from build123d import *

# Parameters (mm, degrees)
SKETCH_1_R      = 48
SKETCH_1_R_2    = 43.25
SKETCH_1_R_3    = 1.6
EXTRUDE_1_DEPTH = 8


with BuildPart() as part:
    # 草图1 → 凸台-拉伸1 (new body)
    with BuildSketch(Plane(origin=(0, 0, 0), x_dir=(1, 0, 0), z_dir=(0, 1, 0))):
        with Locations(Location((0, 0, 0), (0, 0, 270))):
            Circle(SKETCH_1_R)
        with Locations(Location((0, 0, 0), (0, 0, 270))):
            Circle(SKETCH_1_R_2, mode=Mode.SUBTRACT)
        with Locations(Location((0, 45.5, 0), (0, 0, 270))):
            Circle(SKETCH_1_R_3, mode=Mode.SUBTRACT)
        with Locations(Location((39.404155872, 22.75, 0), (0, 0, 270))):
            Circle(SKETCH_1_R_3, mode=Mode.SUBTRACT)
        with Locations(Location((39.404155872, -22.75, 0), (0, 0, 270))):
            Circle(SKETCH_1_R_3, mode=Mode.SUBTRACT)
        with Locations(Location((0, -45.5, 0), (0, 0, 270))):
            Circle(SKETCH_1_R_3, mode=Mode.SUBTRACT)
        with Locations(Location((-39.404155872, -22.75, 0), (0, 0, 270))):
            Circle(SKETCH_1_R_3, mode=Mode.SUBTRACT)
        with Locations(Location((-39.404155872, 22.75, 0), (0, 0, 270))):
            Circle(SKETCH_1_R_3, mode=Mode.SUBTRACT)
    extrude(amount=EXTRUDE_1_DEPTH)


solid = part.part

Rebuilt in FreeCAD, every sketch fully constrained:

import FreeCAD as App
import Part
import Sketcher
from FreeCAD import Vector
Q = App.Units.Quantity

doc = App.newDocument("Part")
body = doc.addObject("PartDesign::Body", "Body")

# Sketch on XZ plane
sketch1 = doc.addObject("Sketcher::SketchObject", "Sketch")
body.addObject(sketch1)
sketch1.AttachmentSupport = (doc.XZ_Plane, [""])
sketch1.MapMode = "FlatFace"
sketch1.addGeometry(Part.Circle(Vector(0, 0, 0), Vector(0, 0, 1), 48), False)
sketch1.addGeometry(Part.Circle(Vector(-39.404156, -22.75, 0), Vector(0, 0, 1), 1.6), False)
sketch1.addGeometry(Part.Circle(Vector(0, -45.5, 0), Vector(0, 0, 1), 1.6), False)
sketch1.addGeometry(Part.Circle(Vector(-39.404156, 22.75, 0), Vector(0, 0, 1), 1.6), False)
sketch1.addGeometry(Part.Circle(Vector(39.404156, -22.75, 0), Vector(0, 0, 1), 1.6), False)
sketch1.addGeometry(Part.Circle(Vector(0, 0, 0), Vector(0, 0, 1), 43.25), False)
sketch1.addGeometry(Part.Circle(Vector(0, 45.5, 0), Vector(0, 0, 1), 1.6), False)
sketch1.addGeometry(Part.Circle(Vector(39.404156, 22.75, 0), Vector(0, 0, 1), 1.6), False)
sketch1.addConstraint(Sketcher.Constraint("Coincident", 0, 3, -1, 1))
sketch1.addConstraint(Sketcher.Constraint("Coincident", 5, 3, -1, 1))
sketch1.addConstraint(Sketcher.Constraint("Equal", 1, 2))
sketch1.addConstraint(Sketcher.Constraint("Equal", 2, 3))
sketch1.addConstraint(Sketcher.Constraint("Equal", 3, 4))
sketch1.addConstraint(Sketcher.Constraint("Equal", 4, 6))
sketch1.addConstraint(Sketcher.Constraint("Equal", 6, 7))
sketch1.addConstraint(Sketcher.Constraint("Symmetric", 3, 3, 4, 3, -1, 1))
sketch1.addConstraint(Sketcher.Constraint("Symmetric", 2, 3, 6, 3, -1, 1))
sketch1.addConstraint(Sketcher.Constraint("Symmetric", 1, 3, 7, 3, -1, 1))
sketch1.addConstraint(Sketcher.Constraint("Symmetric", 1, 3, 4, 3, -2))
sketch1.addConstraint(Sketcher.Constraint("PointOnObject", 2, 3, -2))
sketch1.addConstraint(Sketcher.Constraint("Diameter", 0, Q("96 mm")))
sketch1.addConstraint(Sketcher.Constraint("Diameter", 1, Q("3.2 mm")))
sketch1.addConstraint(Sketcher.Constraint("Diameter", 5, Q("86.5 mm")))
sketch1.addConstraint(Sketcher.Constraint("DistanceY", 2, 3, -1, 1, Q("45.5 mm")))
sketch1.addConstraint(Sketcher.Constraint("DistanceY", 1, 3, 3, 3, Q("45.5 mm")))
sketch1.addConstraint(Sketcher.Constraint("DistanceX", 1, 3, 4, 3, Q("78.808312 mm")))
pad1 = doc.addObject("PartDesign::Pad", "Pad")
body.addObject(pad1)
pad1.Profile = sketch1
pad1.Length = 8
pad1.Reversed = True

doc.recompute()
